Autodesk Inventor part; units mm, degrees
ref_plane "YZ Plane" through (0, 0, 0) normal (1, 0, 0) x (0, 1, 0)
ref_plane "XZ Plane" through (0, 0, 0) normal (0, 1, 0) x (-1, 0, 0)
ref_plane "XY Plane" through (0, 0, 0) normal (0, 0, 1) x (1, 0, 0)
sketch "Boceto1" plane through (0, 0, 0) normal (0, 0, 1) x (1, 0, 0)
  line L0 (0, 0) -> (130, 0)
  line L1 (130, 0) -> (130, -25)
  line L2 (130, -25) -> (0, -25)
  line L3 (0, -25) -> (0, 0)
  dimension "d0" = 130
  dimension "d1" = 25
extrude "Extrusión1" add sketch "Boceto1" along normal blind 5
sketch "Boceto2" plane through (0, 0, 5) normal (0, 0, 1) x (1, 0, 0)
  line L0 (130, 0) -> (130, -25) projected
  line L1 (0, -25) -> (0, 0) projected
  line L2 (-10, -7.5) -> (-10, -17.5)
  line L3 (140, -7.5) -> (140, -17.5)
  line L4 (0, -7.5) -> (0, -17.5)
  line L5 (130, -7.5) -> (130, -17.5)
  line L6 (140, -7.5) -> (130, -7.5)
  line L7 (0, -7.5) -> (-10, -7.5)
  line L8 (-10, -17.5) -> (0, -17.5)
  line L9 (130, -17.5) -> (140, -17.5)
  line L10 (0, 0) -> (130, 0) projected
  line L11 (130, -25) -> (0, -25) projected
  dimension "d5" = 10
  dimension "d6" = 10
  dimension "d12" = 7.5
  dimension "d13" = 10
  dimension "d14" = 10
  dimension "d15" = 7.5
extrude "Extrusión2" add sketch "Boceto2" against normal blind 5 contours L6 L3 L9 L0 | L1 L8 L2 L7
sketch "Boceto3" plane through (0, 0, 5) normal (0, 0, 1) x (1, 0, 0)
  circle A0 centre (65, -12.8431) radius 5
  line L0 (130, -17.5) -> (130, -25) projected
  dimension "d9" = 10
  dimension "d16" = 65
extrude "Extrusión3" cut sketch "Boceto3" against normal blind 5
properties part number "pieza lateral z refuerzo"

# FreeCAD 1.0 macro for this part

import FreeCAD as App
import Part
import Sketcher
from FreeCAD import Vector

doc = App.newDocument("Part")
body = doc.addObject("PartDesign::Body", "Body")

# Sketch on XY plane
sketch1 = doc.addObject("Sketcher::SketchObject", "Sketch")
body.addObject(sketch1)
sketch1.AttachmentSupport = (doc.XY_Plane, [""])
sketch1.MapMode = "FlatFace"
sketch1.addGeometry([
    Part.LineSegment(Vector(130, 0, 0), Vector(0, 0, 0)),
    Part.LineSegment(Vector(0, 0, 0), Vector(0, -25, 0)),
    Part.LineSegment(Vector(0, -25, 0), Vector(130, -25, 0)),
    Part.LineSegment(Vector(130, -25, 0), Vector(130, 0, 0)),
], False)
sketch1.addConstraint([
    Sketcher.Constraint("Coincident", 0, 2, 1, 1),
    Sketcher.Constraint("Coincident", 1, 2, 2, 1),
    Sketcher.Constraint("Coincident", 2, 2, 3, 1),
    Sketcher.Constraint("Coincident", 3, 2, 0, 1),
    Sketcher.Constraint("Horizontal", 0),
    Sketcher.Constraint("Vertical", 1),
    Sketcher.Constraint("Horizontal", 2),
    Sketcher.Constraint("Vertical", 3),
    Sketcher.Constraint("Coincident", 0, 2, -1, 1),
    Sketcher.Constraint("DistanceX", 0, 2, 0, 1, 130.0),
    Sketcher.Constraint("DistanceY", 1, 2, 1, 1, 25.0),
])
pad1 = doc.addObject("PartDesign::Pad", "Pad")
body.addObject(pad1)
pad1.Profile = sketch1
pad1.Length = 5

# Sketch on XY plane
sketch2 = doc.addObject("Sketcher::SketchObject", "Sketch001")
body.addObject(sketch2)
sketch2.AttachmentSupport = (doc.XY_Plane, [""])
sketch2.MapMode = "FlatFace"
sketch2.AttachmentOffset = App.Placement(Vector(0, 0, 5), App.Rotation())
sketch2.addGeometry([
    Part.LineSegment(Vector(140, -8, 0), Vector(130, -8, 0)),  # 0
    Part.LineSegment(Vector(130, -8, 0), Vector(130, -18, 0)),  # 1
    Part.LineSegment(Vector(130, -18, 0), Vector(140, -18, 0)),  # 2
    Part.LineSegment(Vector(140, -18, 0), Vector(140, -8, 0)),  # 3
    Part.LineSegment(Vector(0, -18, 0), Vector(0, -8, 0)),  # 4
    Part.LineSegment(Vector(0, -8, 0), Vector(-10, -8, 0)),  # 5
    Part.LineSegment(Vector(-10, -8, 0), Vector(-10, -18, 0)),  # 6
    Part.LineSegment(Vector(-10, -18, 0), Vector(0, -18, 0)),  # 7
], False)
sketch2.addConstraint([
    Sketcher.Constraint("Coincident", 0, 2, 1, 1),
    Sketcher.Constraint("Coincident", 1, 2, 2, 1),
    Sketcher.Constraint("Coincident", 2, 2, 3, 1),
    Sketcher.Constraint("Coincident", 3, 2, 0, 1),
    Sketcher.Constraint("Coincident", 4, 2, 5, 1),
    Sketcher.Constraint("Coincident", 5, 2, 6, 1),
    Sketcher.Constraint("Coincident", 6, 2, 7, 1),
    Sketcher.Constraint("Coincident", 7, 2, 4, 1),
    Sketcher.Constraint("Horizontal", 0),
    Sketcher.Constraint("Vertical", 1),
    Sketcher.Constraint("Horizontal", 2),
    Sketcher.Constraint("Vertical", 3),
    Sketcher.Constraint("Vertical", 4),
    Sketcher.Constraint("Horizontal", 5),
    Sketcher.Constraint("Vertical", 6),
    Sketcher.Constraint("Horizontal", 7),
    Sketcher.Constraint("PointOnObject", 4, 2, -2),
    Sketcher.Constraint("Horizontal", 3, 2, 4, 2),
    Sketcher.Constraint("Horizontal", 2, 2, 6, 2),
    Sketcher.Constraint("Equal", 2, 5),
    Sketcher.Constraint("Equal", 7, 1),
    Sketcher.Constraint("DistanceX", 0, 2, 0, 1, 10.0),
    Sketcher.Constraint("DistanceY", 0, 2, -1, 1, 7.5),
    Sketcher.Constraint("DistanceX", -1, 1, 0, 2, 130.0),
])
pad2 = doc.addObject("PartDesign::Pad", "Pad001")
body.addObject(pad2)
pad2.Profile = sketch2
pad2.Length = 5
pad2.Reversed = True

# Sketch on XY plane
sketch3 = doc.addObject("Sketcher::SketchObject", "Sketch002")
body.addObject(sketch3)
sketch3.AttachmentSupport = (doc.XY_Plane, [""])
sketch3.MapMode = "FlatFace"
sketch3.AttachmentOffset = App.Placement(Vector(0, 0, 5), App.Rotation())
sketch3.addGeometry(Part.Circle(Vector(65, -13, 0), Vector(0, 0, 1), 5), False)
sketch3.addConstraint([
    Sketcher.Constraint("Diameter", 0, 10.0),
    Sketcher.Constraint("DistanceX", -1, 1, 0, 3, 65.0),
    Sketcher.Constraint("DistanceY", 0, 3, -1, 1, 12.843),
])
pocket1 = doc.addObject("PartDesign::Pocket", "Pocket")
body.addObject(pocket1)
pocket1.Profile = sketch3
pocket1.Length = 5

doc.recompute()
